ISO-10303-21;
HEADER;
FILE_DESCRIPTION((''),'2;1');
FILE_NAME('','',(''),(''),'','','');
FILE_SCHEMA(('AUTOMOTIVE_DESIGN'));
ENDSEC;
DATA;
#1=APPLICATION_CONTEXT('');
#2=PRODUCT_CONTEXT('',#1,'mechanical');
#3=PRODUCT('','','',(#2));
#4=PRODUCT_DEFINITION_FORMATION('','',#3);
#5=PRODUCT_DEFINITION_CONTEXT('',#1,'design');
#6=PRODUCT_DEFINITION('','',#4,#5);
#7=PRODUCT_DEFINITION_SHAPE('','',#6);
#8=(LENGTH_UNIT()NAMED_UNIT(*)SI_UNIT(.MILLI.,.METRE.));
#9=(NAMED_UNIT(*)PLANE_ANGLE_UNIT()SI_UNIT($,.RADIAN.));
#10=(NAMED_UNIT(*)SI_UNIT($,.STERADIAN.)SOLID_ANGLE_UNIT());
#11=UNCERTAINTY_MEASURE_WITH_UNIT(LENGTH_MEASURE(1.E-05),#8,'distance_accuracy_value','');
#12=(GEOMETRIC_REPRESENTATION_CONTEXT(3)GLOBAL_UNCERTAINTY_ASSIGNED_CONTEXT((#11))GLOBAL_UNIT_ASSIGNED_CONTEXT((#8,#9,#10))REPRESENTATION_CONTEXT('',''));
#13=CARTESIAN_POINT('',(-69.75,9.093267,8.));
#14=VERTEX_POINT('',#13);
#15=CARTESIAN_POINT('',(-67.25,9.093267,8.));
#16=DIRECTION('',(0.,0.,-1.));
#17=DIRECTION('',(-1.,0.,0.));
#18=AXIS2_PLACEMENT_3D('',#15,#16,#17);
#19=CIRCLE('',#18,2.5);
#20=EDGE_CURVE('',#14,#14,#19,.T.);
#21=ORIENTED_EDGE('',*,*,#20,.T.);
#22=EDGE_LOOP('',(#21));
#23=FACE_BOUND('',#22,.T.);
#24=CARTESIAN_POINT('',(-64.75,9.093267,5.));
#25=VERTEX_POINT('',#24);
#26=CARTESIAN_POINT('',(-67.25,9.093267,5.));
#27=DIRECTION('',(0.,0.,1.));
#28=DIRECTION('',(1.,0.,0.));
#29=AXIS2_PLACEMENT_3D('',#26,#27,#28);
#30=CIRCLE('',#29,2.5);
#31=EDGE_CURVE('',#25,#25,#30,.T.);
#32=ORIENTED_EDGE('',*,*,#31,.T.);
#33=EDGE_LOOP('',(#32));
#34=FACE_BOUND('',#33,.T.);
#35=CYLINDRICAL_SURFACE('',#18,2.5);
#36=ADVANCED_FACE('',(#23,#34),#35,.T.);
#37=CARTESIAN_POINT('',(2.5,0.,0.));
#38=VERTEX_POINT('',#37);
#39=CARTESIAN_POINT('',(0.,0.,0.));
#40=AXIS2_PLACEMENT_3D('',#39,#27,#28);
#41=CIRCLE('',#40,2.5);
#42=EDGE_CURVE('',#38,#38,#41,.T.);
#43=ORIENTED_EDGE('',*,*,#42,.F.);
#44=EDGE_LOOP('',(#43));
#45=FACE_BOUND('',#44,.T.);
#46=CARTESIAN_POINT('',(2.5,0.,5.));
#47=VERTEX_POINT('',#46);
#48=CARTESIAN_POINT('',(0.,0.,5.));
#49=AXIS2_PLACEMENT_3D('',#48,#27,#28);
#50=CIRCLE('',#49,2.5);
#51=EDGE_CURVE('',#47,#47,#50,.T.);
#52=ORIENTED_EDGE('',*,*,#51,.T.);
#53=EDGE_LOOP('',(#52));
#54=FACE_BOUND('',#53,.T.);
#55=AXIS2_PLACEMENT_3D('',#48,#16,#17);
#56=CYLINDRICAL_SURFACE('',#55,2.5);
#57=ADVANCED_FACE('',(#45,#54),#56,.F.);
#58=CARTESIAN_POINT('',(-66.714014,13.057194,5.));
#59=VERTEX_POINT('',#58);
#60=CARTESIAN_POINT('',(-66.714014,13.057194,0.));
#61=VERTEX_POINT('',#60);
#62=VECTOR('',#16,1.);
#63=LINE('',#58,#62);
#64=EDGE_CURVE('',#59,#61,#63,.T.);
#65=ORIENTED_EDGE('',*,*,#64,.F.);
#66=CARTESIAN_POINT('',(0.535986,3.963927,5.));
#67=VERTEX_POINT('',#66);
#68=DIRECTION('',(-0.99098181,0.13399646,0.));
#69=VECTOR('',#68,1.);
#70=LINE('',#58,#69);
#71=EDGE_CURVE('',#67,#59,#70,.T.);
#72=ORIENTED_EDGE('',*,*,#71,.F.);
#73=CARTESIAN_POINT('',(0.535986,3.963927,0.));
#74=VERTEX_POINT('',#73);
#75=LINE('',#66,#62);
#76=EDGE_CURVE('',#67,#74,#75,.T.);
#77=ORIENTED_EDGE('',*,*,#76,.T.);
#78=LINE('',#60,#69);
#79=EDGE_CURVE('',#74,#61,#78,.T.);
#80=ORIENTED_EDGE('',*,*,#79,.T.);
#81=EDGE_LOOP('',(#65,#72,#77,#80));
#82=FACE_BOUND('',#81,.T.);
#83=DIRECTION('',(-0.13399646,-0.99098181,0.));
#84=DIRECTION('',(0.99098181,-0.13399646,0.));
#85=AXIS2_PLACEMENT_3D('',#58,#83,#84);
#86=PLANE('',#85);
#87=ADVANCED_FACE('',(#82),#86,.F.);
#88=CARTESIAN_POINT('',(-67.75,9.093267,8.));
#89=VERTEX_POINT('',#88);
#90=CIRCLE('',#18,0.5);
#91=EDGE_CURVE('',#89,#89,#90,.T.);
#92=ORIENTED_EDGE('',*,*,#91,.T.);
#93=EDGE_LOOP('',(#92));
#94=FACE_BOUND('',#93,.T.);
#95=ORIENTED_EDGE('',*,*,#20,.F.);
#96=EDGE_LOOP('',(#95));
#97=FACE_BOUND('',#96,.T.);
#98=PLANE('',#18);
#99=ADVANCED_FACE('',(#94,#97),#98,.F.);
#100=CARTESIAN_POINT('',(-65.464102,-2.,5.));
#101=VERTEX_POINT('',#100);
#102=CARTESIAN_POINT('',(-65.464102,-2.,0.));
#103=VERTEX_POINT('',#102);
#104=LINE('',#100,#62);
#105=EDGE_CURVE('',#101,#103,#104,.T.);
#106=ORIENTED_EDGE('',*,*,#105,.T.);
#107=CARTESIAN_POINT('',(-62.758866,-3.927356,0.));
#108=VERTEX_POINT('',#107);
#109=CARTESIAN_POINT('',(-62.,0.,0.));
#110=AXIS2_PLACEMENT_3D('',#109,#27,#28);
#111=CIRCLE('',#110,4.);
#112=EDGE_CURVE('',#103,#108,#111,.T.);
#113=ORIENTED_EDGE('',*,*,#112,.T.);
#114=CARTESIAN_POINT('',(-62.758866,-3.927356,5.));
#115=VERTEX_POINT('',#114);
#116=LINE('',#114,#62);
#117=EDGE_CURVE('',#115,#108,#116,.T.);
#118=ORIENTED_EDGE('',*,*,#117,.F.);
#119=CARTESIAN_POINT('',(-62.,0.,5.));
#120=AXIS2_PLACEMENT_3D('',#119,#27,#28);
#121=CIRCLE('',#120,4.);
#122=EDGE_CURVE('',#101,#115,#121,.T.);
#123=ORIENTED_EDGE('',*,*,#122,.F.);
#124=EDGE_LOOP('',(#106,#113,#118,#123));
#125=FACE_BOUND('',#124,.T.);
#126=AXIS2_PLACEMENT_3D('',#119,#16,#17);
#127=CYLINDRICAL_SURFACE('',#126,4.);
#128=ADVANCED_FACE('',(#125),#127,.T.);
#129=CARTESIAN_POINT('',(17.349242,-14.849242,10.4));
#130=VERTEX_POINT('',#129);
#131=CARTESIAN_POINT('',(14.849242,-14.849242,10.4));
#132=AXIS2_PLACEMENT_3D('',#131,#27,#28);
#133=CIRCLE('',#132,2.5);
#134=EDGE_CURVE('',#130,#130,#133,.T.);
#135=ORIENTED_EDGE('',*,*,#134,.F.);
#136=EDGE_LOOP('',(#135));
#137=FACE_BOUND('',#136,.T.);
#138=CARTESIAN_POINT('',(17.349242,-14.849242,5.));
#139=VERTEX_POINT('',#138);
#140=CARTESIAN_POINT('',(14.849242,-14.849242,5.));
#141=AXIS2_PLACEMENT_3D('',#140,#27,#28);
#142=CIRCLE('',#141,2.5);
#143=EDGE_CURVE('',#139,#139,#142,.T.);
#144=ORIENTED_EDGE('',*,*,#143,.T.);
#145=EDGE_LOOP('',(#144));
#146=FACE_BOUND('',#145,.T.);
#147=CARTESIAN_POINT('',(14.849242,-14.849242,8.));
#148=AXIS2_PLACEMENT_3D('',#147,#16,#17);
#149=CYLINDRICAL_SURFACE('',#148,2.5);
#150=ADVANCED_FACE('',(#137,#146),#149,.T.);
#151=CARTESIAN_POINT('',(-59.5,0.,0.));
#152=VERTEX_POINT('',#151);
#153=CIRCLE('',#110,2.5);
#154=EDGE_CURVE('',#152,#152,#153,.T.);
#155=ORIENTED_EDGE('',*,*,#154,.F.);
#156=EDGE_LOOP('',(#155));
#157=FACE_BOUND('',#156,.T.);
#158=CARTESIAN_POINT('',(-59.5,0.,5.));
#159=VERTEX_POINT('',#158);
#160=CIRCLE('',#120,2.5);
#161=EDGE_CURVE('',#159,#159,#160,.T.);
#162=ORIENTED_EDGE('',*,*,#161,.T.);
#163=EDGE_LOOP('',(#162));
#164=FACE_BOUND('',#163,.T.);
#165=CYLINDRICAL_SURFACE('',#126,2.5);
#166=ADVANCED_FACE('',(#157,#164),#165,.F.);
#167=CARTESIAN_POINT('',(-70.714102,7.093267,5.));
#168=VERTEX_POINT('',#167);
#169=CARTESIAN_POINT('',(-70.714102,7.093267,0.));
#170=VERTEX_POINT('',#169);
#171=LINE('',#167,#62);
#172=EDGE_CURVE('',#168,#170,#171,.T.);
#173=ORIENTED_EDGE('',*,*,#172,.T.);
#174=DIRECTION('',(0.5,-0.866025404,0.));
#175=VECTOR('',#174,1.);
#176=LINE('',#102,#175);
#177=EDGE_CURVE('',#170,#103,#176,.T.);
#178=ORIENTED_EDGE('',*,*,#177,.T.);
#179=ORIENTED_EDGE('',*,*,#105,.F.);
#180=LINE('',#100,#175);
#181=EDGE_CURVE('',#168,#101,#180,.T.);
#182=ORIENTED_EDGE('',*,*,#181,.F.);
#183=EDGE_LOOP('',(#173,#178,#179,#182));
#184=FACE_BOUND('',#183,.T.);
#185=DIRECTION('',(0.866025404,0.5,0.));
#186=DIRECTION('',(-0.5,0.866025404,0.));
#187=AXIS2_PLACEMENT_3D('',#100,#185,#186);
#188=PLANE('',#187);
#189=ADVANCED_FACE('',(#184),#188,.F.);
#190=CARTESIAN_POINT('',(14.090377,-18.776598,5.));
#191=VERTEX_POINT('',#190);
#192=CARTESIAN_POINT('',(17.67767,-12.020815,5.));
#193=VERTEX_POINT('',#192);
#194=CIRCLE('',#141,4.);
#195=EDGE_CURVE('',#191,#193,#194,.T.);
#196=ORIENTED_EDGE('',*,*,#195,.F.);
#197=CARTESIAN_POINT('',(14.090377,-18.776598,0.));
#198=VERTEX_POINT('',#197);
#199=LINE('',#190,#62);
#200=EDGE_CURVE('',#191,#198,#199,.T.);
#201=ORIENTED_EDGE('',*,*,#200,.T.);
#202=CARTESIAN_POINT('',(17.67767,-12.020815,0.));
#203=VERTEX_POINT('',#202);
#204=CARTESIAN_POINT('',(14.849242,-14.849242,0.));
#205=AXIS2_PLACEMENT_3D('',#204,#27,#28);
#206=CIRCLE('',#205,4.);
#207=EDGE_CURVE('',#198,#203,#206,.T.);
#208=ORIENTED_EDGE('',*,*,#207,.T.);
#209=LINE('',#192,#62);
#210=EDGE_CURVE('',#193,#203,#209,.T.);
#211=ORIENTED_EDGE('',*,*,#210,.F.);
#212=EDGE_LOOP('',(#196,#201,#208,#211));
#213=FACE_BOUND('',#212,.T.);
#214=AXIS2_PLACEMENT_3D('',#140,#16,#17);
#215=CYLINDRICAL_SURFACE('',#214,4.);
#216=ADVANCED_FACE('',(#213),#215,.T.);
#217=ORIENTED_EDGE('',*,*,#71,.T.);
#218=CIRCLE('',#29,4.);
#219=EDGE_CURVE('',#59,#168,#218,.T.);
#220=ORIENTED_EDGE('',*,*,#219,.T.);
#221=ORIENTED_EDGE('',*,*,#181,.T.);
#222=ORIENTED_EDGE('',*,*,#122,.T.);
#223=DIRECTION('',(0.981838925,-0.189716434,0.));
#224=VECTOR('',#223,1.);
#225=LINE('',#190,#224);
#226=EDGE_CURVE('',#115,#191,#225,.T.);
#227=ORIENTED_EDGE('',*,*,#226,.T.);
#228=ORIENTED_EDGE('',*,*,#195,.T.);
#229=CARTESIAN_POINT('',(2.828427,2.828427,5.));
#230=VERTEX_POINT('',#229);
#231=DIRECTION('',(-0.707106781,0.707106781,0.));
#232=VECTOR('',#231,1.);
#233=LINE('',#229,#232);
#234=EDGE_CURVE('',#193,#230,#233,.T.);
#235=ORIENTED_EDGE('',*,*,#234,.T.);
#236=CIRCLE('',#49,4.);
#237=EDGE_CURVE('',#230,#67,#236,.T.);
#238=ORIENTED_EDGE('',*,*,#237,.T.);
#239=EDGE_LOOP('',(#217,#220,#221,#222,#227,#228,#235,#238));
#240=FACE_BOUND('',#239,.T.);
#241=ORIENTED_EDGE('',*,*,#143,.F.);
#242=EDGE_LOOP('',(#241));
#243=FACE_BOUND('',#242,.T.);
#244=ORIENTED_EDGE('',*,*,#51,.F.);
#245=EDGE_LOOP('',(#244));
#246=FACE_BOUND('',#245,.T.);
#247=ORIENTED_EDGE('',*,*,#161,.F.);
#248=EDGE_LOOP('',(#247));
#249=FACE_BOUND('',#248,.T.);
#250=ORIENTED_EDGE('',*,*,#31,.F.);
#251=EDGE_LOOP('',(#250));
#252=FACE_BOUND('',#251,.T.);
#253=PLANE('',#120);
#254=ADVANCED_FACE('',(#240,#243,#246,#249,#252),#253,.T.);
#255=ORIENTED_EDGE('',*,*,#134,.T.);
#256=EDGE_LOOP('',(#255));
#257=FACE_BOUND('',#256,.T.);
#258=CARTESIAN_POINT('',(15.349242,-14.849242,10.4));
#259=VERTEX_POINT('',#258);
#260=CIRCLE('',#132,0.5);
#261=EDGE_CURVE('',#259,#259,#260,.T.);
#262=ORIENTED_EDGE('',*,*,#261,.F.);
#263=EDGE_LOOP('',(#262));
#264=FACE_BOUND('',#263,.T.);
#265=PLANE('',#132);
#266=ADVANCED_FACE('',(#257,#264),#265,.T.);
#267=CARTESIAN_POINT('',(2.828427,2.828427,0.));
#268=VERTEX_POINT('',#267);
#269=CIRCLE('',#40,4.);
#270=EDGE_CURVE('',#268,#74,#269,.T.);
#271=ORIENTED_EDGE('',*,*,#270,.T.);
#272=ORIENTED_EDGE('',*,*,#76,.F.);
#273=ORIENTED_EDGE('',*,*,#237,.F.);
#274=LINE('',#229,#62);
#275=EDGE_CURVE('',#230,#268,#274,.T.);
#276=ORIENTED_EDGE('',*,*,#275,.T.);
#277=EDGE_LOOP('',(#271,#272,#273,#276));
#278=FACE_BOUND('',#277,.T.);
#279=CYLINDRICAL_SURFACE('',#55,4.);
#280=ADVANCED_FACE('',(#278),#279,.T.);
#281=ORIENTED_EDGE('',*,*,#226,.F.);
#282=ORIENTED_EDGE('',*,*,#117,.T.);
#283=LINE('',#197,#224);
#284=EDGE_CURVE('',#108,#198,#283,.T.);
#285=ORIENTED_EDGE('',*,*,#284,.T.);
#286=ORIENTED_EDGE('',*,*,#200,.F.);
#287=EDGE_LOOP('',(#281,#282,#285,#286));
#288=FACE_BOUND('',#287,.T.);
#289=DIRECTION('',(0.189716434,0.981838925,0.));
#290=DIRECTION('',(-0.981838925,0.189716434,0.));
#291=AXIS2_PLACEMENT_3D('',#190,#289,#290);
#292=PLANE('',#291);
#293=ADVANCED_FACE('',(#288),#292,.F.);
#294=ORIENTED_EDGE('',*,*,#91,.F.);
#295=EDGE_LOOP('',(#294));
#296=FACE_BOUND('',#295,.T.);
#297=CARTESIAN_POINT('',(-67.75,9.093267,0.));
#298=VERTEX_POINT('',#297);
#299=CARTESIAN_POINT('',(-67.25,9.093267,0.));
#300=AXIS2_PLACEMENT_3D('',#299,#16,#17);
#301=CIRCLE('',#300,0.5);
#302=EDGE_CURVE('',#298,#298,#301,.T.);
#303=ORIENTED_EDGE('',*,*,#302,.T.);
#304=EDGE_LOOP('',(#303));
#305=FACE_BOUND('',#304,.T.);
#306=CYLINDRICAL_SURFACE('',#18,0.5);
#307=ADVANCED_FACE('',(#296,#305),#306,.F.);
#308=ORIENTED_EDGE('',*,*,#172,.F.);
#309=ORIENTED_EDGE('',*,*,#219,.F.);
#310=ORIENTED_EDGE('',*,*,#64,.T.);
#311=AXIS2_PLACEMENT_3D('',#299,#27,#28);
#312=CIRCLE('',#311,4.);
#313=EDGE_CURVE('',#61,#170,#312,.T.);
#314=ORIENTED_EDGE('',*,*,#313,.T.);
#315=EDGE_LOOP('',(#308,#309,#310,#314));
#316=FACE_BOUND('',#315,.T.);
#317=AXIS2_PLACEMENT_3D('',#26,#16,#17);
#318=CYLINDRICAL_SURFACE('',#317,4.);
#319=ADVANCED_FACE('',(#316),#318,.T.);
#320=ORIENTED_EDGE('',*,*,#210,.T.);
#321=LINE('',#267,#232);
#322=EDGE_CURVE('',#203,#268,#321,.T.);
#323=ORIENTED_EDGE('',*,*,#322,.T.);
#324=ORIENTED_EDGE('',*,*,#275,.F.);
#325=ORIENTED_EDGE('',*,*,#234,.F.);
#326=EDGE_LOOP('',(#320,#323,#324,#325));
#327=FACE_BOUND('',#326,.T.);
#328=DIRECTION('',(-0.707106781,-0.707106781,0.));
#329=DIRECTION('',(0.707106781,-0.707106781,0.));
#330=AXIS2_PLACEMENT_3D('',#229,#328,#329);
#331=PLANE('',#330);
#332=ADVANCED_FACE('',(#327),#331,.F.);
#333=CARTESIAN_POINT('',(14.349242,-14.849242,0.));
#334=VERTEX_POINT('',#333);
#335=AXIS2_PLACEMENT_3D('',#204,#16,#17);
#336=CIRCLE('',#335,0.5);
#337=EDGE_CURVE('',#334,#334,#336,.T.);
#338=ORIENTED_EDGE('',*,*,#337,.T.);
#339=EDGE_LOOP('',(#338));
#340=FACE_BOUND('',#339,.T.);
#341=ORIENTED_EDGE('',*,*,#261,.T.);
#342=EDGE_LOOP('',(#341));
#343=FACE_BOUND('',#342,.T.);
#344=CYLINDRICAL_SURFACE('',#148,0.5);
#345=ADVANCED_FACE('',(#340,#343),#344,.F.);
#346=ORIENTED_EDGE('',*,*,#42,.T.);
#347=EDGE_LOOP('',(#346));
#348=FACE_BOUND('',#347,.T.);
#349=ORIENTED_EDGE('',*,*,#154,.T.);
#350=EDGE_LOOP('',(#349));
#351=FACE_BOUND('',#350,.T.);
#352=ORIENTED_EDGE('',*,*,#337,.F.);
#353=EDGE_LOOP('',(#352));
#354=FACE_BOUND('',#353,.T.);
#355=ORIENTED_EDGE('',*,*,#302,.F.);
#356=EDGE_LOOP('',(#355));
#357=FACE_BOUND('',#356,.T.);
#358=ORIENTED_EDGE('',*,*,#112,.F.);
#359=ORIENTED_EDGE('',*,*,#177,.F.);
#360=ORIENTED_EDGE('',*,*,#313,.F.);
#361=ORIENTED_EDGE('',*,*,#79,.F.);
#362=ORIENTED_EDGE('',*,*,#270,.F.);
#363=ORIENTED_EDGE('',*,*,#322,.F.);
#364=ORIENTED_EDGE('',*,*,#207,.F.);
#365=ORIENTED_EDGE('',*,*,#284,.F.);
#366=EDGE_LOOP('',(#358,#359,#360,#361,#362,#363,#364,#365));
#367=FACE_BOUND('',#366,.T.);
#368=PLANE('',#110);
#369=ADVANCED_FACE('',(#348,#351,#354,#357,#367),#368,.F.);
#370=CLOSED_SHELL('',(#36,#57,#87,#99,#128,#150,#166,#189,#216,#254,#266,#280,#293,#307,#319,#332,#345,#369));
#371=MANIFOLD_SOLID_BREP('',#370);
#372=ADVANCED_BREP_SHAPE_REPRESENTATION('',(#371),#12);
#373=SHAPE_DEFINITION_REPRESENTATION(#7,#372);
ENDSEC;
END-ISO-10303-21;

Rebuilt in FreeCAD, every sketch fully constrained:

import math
import FreeCAD as App
import Part
import Sketcher
Q = App.Units.Quantity

doc = App.newDocument("Part")
params = doc.addObject("Spreadsheet::Sheet", "Params")
for row, (alias, value) in enumerate([
    ("sketch1_diameter", "5 mm"),
    ("sketch1_radius", "4 mm"),
    ("sketch1_length", "21 mm"),
    ("sketch1_length2", "10.5 mm"),
    ("pad1_length", "5 mm"),
    ("sketch2_diameter", "5 mm"),
    ("sketch2_diameter2", "1 mm"),
    ("pad2_length", "8 mm"),
    ("sketch3_diameter", "5 mm"),
    ("sketch3_diameter2", "1 mm"),
    ("pad3_length", "2.4 mm"),
], start=1):
    params.set(f"A{row}", alias)
    params.set(f"B{row}", "=" + value)
    params.setAlias(f"B{row}", alias)

body = doc.addObject("PartDesign::Body", "Body")

# Sketch on XY plane
sketch1 = body.newObject("Sketcher::SketchObject", "Sketch")
sketch1.AttachmentSupport = (doc.getObject("XY_Plane"), [""])
sketch1.MapMode = "FlatFace"
sketch1.addGeometry([
    Part.LineSegment(App.Vector(0.5, 4, 0), App.Vector(-66.7, 13.1, 0)),  # 0
    Part.ArcOfCircle(Part.Circle(App.Vector(-67.2, 9.1, 0), App.Vector(0, 0, 1), 4), math.radians(82), math.radians(210)),  # 1
    Part.LineSegment(App.Vector(-70.7, 7.1, 0), App.Vector(-65.5, -2, 0)),  # 2
    Part.ArcOfCircle(Part.Circle(App.Vector(-62, 0, 0), App.Vector(0, 0, 1), 4), math.radians(-150), math.radians(-101)),  # 3
    Part.LineSegment(App.Vector(-62.8, -3.9, 0), App.Vector(14.1, -18.8, 0)),  # 4
    Part.ArcOfCircle(Part.Circle(App.Vector(14.8, -14.8, 0), App.Vector(0, 0, 1), 4), math.radians(-101), math.radians(45)),  # 5
    Part.LineSegment(App.Vector(17.7, -12, 0), App.Vector(2.8, 2.8, 0)),  # 6
    Part.ArcOfCircle(Part.Circle(App.Vector(0, 0, 0), App.Vector(0, 0, 1), 4), math.radians(45), math.radians(82)),  # 7
    Part.Circle(App.Vector(14.8, -14.8, 0), App.Vector(0, 0, 1), 2.5),  # 8
    Part.Circle(App.Vector(0, 0, 0), App.Vector(0, 0, 1), 2.5),  # 9
    Part.Circle(App.Vector(-62, 0, 0), App.Vector(0, 0, 1), 2.5),  # 10
    Part.Circle(App.Vector(-67.2, 9.1, 0), App.Vector(0, 0, 1), 2.5),  # 11
], False)
sketch1.addConstraint([
    Sketcher.Constraint("Tangent", 0, 2, 1, 1),
    Sketcher.Constraint("Tangent", 1, 2, 2, 1),
    Sketcher.Constraint("Tangent", 2, 2, 3, 1),
    Sketcher.Constraint("Tangent", 3, 2, 4, 1),
    Sketcher.Constraint("Tangent", 4, 2, 5, 1),
    Sketcher.Constraint("Tangent", 5, 2, 6, 1),
    Sketcher.Constraint("Tangent", 6, 2, 7, 1),
    Sketcher.Constraint("Tangent", 7, 2, 0, 1),
    Sketcher.Constraint("Coincident", 7, 3, -1, 1),
    Sketcher.Constraint("Coincident", 9, 3, -1, 1),
    Sketcher.Constraint("Coincident", 8, 3, 5, 3),
    Sketcher.Constraint("Coincident", 10, 3, 3, 3),
    Sketcher.Constraint("Coincident", 11, 3, 1, 3),
    Sketcher.Constraint("Equal", 1, 3),
    Sketcher.Constraint("Equal", 3, 5),
    Sketcher.Constraint("Equal", 5, 7),
    Sketcher.Constraint("Equal", 8, 9),
    Sketcher.Constraint("Equal", 9, 10),
    Sketcher.Constraint("Equal", 10, 11),
    Sketcher.Constraint("PointOnObject", 3, 3, -1),
    Sketcher.Constraint("Diameter", 8, 5.0),
    Sketcher.Constraint("Radius", 1, 4.0),
    Sketcher.Constraint("Angle", 2, Q("-60 deg")),
    Sketcher.Constraint("Angle", 6, Q("135 deg")),
    Sketcher.Constraint("Distance", 6, 21.0),
    Sketcher.Constraint("DistanceX", 3, 3, -1, 1, 62.0),
    Sketcher.Constraint("Distance", 2, 10.5),
])
sketch1.setExpression("Constraints[20]", "Params.sketch1_diameter")
sketch1.setExpression("Constraints[21]", "Params.sketch1_radius")
sketch1.setExpression("Constraints[24]", "Params.sketch1_length")
sketch1.setExpression("Constraints[26]", "Params.sketch1_length2")
pad1 = body.newObject("PartDesign::Pad", "Pad")
pad1.Profile = sketch1
pad1.setExpression("Length", "Params.pad1_length")

# Sketch on XY plane
sketch2 = body.newObject("Sketcher::SketchObject", "Sketch001")
sketch2.AttachmentSupport = (doc.getObject("XY_Plane"), [""])
sketch2.MapMode = "FlatFace"
sketch2.addGeometry([
    Part.Circle(App.Vector(-67.2, 9.1, 0), App.Vector(0, 0, 1), 2.5),
    Part.Circle(App.Vector(-67.2, 9.1, 0), App.Vector(0, 0, 1), 0.5),
    Part.Circle(App.Vector(14.8, -14.8, 0), App.Vector(0, 0, 1), 2.5),
    Part.Circle(App.Vector(14.8, -14.8, 0), App.Vector(0, 0, 1), 0.5),
], False)
sketch2.addConstraint([
    Sketcher.Constraint("Coincident", 1, 3, 0, 3),
    Sketcher.Constraint("Coincident", 3, 3, 2, 3),
    Sketcher.Constraint("Equal", 0, 2),
    Sketcher.Constraint("Equal", 1, 3),
    Sketcher.Constraint("Diameter", 0, 5.0),
    Sketcher.Constraint("Diameter", 1, 1.0),
    Sketcher.Constraint("DistanceX", 0, 3, -1, 1, 67.25),
    Sketcher.Constraint("DistanceY", 2, 3, 0, 3, 23.942509),
    Sketcher.Constraint("DistanceY", -1, 1, 0, 3, 9.093267),
    Sketcher.Constraint("DistanceX", -1, 1, 2, 3, 14.849242),
])
sketch2.setExpression("Constraints[4]", "Params.sketch2_diameter")
sketch2.setExpression("Constraints[5]", "Params.sketch2_diameter2")
pad2 = body.newObject("PartDesign::Pad", "Pad001")
pad2.Profile = sketch2
pad2.setExpression("Length", "Params.pad2_length")

# Sketch on XY plane
sketch3 = body.newObject("Sketcher::SketchObject", "Sketch002")
sketch3.AttachmentSupport = (doc.getObject("XY_Plane"), [""])
sketch3.MapMode = "FlatFace"
sketch3.AttachmentOffset = App.Placement(App.Vector(0, 0, 8), App.Rotation())
sketch3.addGeometry([
    Part.Circle(App.Vector(14.8, -14.8, 0), App.Vector(0, 0, 1), 2.5),
    Part.Circle(App.Vector(14.8, -14.8, 0), App.Vector(0, 0, 1), 0.5),
], False)
sketch3.addConstraint([
    Sketcher.Constraint("Coincident", 1, 3, 0, 3),
    Sketcher.Constraint("Diameter", 0, 5.0),
    Sketcher.Constraint("Diameter", 1, 1.0),
    Sketcher.Constraint("DistanceX", -1, 1, 0, 3, 14.849242),
    Sketcher.Constraint("DistanceY", 0, 3, -1, 1, 14.849242),
])
sketch3.setExpression("Constraints[1]", "Params.sketch3_diameter")
sketch3.setExpression("Constraints[2]", "Params.sketch3_diameter2")
pad3 = body.newObject("PartDesign::Pad", "Pad002")
pad3.Profile = sketch3
pad3.setExpression("Length", "Params.pad3_length")

doc.recompute()
